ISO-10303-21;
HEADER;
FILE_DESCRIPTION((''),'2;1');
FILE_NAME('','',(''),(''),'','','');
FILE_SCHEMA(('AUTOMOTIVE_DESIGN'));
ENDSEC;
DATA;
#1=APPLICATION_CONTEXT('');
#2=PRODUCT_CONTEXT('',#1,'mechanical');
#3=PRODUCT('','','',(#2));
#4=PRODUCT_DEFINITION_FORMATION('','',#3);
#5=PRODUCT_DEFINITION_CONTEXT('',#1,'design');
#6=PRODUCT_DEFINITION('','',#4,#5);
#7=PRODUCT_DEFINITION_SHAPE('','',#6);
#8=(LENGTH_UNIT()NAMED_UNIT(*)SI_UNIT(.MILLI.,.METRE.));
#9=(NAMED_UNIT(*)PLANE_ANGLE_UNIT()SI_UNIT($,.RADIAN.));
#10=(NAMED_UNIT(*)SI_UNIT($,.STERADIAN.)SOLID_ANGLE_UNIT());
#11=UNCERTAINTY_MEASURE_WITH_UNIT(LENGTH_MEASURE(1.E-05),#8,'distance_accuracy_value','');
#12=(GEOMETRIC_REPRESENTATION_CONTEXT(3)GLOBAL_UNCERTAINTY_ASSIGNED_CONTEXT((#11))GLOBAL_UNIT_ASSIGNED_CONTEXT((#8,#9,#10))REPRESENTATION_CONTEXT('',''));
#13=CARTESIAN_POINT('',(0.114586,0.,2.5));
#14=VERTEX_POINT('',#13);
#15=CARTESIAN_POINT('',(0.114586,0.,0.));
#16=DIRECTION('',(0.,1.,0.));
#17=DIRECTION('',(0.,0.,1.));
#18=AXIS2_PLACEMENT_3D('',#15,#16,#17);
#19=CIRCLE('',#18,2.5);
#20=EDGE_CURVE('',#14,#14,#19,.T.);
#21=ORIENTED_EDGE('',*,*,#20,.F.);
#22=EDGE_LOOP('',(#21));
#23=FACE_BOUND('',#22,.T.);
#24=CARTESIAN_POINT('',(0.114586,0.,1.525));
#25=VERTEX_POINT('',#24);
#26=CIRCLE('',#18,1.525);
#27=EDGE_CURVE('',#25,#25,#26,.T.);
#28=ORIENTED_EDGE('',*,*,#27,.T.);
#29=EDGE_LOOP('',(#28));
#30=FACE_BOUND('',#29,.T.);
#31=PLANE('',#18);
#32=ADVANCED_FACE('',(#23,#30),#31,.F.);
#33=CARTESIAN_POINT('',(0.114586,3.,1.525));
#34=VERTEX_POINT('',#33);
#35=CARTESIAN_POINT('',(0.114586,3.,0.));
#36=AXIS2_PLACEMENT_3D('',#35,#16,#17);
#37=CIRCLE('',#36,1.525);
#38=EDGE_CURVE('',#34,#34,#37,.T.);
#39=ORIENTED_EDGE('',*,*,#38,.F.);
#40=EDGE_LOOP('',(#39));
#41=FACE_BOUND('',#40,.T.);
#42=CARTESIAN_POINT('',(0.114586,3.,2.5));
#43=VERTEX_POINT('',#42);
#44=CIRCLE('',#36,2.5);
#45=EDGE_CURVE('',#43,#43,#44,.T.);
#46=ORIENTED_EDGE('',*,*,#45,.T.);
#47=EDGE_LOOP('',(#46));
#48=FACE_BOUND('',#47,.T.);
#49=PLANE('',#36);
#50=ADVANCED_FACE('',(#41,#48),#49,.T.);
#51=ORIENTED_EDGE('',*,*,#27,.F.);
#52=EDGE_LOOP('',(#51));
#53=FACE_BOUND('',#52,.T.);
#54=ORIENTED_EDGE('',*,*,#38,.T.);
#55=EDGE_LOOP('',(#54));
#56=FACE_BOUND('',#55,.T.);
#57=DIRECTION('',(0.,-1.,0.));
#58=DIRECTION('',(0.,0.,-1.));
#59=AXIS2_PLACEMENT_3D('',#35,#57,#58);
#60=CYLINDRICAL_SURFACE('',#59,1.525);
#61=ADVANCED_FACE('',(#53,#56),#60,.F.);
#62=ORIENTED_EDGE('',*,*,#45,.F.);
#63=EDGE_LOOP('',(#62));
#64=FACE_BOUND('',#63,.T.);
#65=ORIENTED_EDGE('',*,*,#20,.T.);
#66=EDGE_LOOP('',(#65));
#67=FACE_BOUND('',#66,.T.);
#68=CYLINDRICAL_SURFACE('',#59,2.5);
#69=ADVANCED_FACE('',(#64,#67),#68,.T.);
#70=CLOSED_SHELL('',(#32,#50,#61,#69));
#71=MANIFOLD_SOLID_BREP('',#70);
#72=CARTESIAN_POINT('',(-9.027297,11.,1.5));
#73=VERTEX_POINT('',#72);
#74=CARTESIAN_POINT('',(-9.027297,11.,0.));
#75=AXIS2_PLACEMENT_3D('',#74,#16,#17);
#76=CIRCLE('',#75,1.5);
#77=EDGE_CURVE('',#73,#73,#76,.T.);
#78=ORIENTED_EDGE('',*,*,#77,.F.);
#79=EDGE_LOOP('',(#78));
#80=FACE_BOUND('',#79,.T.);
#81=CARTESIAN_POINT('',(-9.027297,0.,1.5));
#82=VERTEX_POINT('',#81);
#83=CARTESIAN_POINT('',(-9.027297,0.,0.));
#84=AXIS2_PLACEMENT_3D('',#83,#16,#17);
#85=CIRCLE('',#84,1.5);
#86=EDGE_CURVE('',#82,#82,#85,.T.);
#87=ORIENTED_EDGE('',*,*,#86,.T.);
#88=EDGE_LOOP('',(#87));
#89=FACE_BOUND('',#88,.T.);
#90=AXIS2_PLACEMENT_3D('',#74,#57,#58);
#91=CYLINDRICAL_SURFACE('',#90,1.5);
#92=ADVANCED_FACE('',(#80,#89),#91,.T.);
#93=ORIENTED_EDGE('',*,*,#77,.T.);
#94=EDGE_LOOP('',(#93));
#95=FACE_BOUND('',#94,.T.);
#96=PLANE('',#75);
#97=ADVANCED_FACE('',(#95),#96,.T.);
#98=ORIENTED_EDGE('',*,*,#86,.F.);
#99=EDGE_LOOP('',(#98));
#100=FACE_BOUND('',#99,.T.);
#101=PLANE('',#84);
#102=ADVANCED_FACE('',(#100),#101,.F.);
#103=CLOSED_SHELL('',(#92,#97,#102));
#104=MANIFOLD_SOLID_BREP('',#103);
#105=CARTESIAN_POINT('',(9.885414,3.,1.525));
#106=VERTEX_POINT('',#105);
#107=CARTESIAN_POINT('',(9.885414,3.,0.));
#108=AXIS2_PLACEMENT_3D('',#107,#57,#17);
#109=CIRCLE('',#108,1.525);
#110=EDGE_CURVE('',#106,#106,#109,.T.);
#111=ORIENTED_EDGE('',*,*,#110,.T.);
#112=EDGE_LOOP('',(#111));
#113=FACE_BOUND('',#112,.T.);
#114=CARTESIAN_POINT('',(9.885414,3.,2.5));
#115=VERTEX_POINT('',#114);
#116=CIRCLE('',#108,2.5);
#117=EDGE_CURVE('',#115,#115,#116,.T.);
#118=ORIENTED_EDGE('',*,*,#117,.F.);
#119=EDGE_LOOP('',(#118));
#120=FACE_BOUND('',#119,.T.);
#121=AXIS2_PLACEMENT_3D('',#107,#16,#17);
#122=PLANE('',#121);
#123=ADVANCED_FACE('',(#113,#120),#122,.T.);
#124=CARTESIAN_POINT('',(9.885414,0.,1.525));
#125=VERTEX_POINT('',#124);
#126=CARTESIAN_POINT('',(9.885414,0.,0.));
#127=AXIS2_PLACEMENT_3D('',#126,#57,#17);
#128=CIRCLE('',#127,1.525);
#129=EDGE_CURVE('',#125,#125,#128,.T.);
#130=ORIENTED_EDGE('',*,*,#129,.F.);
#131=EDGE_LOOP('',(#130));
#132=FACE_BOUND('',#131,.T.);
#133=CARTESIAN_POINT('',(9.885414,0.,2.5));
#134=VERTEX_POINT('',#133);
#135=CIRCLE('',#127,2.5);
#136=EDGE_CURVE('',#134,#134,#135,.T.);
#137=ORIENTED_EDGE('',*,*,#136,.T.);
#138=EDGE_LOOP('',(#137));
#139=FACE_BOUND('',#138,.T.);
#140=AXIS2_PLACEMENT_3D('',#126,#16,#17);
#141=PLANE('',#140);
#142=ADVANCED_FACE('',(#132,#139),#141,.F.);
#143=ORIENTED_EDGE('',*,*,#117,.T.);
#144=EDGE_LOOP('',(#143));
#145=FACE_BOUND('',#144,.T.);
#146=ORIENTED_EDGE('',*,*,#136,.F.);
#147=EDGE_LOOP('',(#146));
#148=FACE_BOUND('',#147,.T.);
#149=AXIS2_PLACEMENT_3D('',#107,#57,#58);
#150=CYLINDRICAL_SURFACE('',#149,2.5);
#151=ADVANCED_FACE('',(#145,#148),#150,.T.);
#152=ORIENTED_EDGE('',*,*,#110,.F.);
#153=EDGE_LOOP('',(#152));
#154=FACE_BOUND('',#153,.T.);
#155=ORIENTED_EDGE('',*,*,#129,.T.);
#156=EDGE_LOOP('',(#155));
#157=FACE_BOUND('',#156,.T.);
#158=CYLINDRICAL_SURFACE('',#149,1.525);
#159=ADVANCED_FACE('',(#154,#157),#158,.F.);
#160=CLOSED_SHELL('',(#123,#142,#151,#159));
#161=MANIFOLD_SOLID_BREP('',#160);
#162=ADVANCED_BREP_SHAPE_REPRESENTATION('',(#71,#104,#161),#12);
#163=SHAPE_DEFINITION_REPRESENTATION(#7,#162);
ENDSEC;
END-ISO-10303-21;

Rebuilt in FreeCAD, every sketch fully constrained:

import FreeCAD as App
import Part
import Sketcher

V = App.Vector

doc = App.newDocument("Part")
body = doc.addObject("PartDesign::Body", "Body")

sketch1 = body.newObject("Sketcher::SketchObject", "Sketch")
sketch1.AttachmentSupport = (doc.getObject("XZ_Plane"), [""])
sketch1.MapMode = "FlatFace"
sketch1.addGeometry([
    Part.Circle(V(0.114586, 0, 0), V(0, 0, 1), 2.5),
    Part.Circle(V(0.114586, 0, 0), V(0, 0, 1), 1.525),
], False)
sketch1.addConstraint([
    Sketcher.Constraint("Coincident", 1, 3, 0, 3),
    Sketcher.Constraint("PointOnObject", 0, 3, -1),
    Sketcher.Constraint("Diameter", 0, 5.0),
    Sketcher.Constraint("Diameter", 1, 3.05),
    Sketcher.Constraint("DistanceX", -1, 1, 0, 3, 0.114586),
])
pad1 = body.newObject("PartDesign::Pad", "Pad")
pad1.Profile = sketch1
pad1.Length = 3
pad1.Reversed = True
body2 = doc.addObject("PartDesign::Body", "Body001")

sketch2 = body2.newObject("Sketcher::SketchObject", "Sketch001")
sketch2.AttachmentSupport = (doc.getObject("XZ_Plane001"), [""])
sketch2.MapMode = "FlatFace"
sketch2.addGeometry(Part.Circle(V(-9.027297, 0, 0), V(0, 0, 1), 1.5), False)
sketch2.addConstraint([
    Sketcher.Constraint("PointOnObject", 0, 3, -1),
    Sketcher.Constraint("Diameter", 0, 3.0),
    Sketcher.Constraint("DistanceX", 0, 3, -1, 1, 9.027297),
])
pad2 = body2.newObject("PartDesign::Pad", "Pad001")
pad2.Profile = sketch2
pad2.Length = 11
pad2.Reversed = True
body3 = doc.addObject("PartDesign::Body", "Body002")
doc.recompute()

mirroring = doc.addObject("Part::Mirroring", "Mirroring")
mirroring.Source = body
mirroring.Base = V(5, 0, 0)
mirroring.Normal = V(1, 0, 0)
body3.BaseFeature = mirroring
doc.recompute()
mirroring.Visibility = False

doc.recompute()
